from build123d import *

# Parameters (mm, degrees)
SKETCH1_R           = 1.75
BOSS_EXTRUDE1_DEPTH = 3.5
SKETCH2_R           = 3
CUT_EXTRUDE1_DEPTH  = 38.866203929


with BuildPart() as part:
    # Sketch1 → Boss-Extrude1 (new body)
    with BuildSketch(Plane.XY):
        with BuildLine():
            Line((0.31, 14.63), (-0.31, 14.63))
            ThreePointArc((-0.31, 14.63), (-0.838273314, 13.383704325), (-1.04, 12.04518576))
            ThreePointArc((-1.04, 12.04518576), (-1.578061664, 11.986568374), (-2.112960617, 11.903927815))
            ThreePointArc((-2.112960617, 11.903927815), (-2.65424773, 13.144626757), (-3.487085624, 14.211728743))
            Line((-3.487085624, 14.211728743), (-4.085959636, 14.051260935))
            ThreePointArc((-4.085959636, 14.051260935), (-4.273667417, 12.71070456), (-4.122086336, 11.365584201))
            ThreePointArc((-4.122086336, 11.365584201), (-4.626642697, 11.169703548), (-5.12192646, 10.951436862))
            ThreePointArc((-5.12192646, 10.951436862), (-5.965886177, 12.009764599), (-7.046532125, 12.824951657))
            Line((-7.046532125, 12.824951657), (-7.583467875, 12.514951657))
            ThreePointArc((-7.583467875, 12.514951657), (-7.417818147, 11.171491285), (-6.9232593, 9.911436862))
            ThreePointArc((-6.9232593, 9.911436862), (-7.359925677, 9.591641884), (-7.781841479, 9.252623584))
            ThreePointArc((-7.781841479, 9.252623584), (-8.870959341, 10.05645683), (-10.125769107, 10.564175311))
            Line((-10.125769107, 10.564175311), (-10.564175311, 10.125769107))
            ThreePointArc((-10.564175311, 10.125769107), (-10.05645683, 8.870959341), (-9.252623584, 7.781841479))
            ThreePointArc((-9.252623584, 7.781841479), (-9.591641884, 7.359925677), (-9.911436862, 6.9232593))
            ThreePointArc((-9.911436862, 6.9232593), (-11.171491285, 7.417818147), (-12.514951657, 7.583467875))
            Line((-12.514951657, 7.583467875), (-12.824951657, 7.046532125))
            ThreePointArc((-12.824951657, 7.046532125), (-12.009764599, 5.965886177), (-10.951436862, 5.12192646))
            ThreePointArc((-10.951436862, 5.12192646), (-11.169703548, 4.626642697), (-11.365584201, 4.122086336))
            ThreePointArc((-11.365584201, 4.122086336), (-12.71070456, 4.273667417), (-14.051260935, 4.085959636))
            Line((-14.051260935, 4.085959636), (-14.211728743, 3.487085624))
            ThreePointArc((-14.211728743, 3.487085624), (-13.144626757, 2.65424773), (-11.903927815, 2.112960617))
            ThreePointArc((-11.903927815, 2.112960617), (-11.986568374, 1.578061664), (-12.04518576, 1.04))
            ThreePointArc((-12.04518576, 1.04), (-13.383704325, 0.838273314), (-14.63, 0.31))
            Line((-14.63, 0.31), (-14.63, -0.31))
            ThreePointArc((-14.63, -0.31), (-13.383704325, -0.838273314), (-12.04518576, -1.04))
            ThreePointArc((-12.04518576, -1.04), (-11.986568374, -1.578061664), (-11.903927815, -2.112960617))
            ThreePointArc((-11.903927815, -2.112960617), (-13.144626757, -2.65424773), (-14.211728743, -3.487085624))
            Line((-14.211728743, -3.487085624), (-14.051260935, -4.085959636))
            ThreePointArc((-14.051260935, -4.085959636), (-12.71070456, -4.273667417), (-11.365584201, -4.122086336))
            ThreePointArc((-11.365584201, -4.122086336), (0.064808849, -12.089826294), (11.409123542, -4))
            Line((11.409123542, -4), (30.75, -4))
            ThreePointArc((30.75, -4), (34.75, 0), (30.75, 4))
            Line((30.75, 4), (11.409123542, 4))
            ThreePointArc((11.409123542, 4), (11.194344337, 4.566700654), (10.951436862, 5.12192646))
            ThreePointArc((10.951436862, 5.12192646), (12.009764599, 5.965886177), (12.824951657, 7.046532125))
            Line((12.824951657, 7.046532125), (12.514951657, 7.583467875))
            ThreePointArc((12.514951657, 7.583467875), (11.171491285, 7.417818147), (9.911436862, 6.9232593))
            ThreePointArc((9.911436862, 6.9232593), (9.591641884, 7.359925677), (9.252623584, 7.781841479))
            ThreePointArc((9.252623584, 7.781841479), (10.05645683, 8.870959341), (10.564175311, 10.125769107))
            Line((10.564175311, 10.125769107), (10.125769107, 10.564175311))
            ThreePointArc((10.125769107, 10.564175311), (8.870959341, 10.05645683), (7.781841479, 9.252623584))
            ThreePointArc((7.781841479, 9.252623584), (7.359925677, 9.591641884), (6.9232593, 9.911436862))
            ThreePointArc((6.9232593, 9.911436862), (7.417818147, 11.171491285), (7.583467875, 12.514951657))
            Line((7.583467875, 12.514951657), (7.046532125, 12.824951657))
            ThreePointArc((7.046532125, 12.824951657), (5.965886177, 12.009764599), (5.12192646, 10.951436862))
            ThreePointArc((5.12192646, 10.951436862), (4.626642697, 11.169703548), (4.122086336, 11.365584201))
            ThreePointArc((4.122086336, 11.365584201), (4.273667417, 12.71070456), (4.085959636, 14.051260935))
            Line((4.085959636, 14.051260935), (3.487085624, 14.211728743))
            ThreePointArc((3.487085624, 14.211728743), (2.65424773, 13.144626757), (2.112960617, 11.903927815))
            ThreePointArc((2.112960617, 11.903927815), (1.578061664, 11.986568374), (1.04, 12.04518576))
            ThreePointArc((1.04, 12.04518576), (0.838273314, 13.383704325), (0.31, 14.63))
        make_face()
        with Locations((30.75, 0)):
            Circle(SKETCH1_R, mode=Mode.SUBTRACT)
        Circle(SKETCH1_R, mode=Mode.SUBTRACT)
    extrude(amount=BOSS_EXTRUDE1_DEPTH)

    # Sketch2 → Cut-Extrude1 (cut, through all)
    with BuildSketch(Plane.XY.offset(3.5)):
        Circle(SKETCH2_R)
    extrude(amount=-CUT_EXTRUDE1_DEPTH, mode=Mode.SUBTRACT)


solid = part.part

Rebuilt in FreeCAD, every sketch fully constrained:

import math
import FreeCAD as App
import Part
import Sketcher
Q = App.Units.Quantity

doc = App.newDocument("Part")
params = doc.addObject("Spreadsheet::Sheet", "Params")
for row, (alias, value) in enumerate([
    ("sketch1_radius", "4 mm"),
    ("sketch1_diameter", "3.5 mm"),
    ("sketch1_radius2", "5.4 mm"),
    ("sketch1_radius3", "12.09 mm"),
    ("sketch1_width", "0.62 mm"),
    ("pad1_length", "3.5 mm"),
    ("sketch2_diameter", "6 mm"),
], start=1):
    params.set(f"A{row}", alias)
    params.set(f"B{row}", "=" + value)
    params.setAlias(f"B{row}", alias)

body = doc.addObject("PartDesign::Body", "Body")

# Sketch on XY plane
sketch1 = body.newObject("Sketcher::SketchObject", "Sketch")
sketch1.AttachmentSupport = (doc.getObject("XY_Plane"), [""])
sketch1.MapMode = "FlatFace"
sketch1.addGeometry([
    Part.LineSegment(App.Vector(0.31, 14.63, 0), App.Vector(-0.31, 14.63, 0)),  # 0
    Part.ArcOfCircle(Part.Circle(App.Vector(4.358456, 11.916051, 0), App.Vector(0, 0, 1), 5.4), math.radians(149.828948), math.radians(178.629703)),  # 1
    Part.ArcOfCircle(Part.Circle(App.Vector(0, 0, 0), App.Vector(0, 0, 1), 12.09), math.radians(94.934768), math.radians(100.065232)),  # 2
    Part.ArcOfCircle(Part.Circle(App.Vector(-7.294046, 10.38197, 0), App.Vector(0, 0, 1), 5.4), math.radians(16.370297), math.radians(45.171052)),  # 3
    Part.LineSegment(App.Vector(-3.487086, 14.211729, 0), App.Vector(-4.08596, 14.051261, 0)),  # 4
    Part.ArcOfCircle(Part.Circle(App.Vector(1.125844, 12.638072, 0), App.Vector(0, 0, 1), 5.4), math.radians(164.828948), math.radians(193.629703)),  # 5
    Part.ArcOfCircle(Part.Circle(App.Vector(0, 0, 0), App.Vector(0, 0, 1), 12.09), math.radians(109.934768), math.radians(115.065232)),  # 6
    Part.ArcOfCircle(Part.Circle(App.Vector(-9.732559, 8.140375, 0), App.Vector(0, 0, 1), 5.4), math.radians(31.370297), math.radians(60.171052)),  # 7
    Part.LineSegment(App.Vector(-7.046532, 12.824952, 0), App.Vector(-7.583468, 12.514952, 0)),  # 8
    Part.ArcOfCircle(Part.Circle(App.Vector(-2.183492, 12.49883, 0), App.Vector(0, 0, 1), 5.4), math.radians(179.828948), math.radians(208.629703)),  # 9
    Part.ArcOfCircle(Part.Circle(App.Vector(0, 0, 0), App.Vector(0, 0, 1), 12.09), math.radians(124.934768), math.radians(130.065232)),  # 10
    Part.ArcOfCircle(Part.Circle(App.Vector(-11.507814, 5.344027, 0), App.Vector(0, 0, 1), 5.4), math.radians(46.370297), math.radians(75.171052)),  # 11
    Part.LineSegment(App.Vector(-10.125769, 10.564175, 0), App.Vector(-10.564175, 10.125769, 0)),  # 12
    Part.ArcOfCircle(Part.Circle(App.Vector(-5.344027, 11.507814, 0), App.Vector(0, 0, 1), 5.4), math.radians(-165.171052), math.radians(-136.370297)),  # 13
    Part.ArcOfCircle(Part.Circle(App.Vector(0, 0, 0), App.Vector(0, 0, 1), 12.09), math.radians(139.934768), math.radians(145.065232)),  # 14
    Part.ArcOfCircle(Part.Circle(App.Vector(-12.49883, 2.183492, 0), App.Vector(0, 0, 1), 5.4), math.radians(61.370297), math.radians(90.171052)),  # 15
    Part.LineSegment(App.Vector(-12.514952, 7.583468, 0), App.Vector(-12.824952, 7.046532, 0)),  # 16
    Part.ArcOfCircle(Part.Circle(App.Vector(-8.140375, 9.732559, 0), App.Vector(0, 0, 1), 5.4), math.radians(-150.171052), math.radians(-121.370297)),  # 17
    Part.ArcOfCircle(Part.Circle(App.Vector(0, 0, 0), App.Vector(0, 0, 1), 12.09), math.radians(154.934768), math.radians(160.065232)),  # 18
    Part.ArcOfCircle(Part.Circle(App.Vector(-12.638072, -1.125844, 0), App.Vector(0, 0, 1), 5.4), math.radians(76.370297), math.radians(105.171052)),  # 19
    Part.LineSegment(App.Vector(-14.051261, 4.08596, 0), App.Vector(-14.211729, 3.487086, 0)),  # 20
    Part.ArcOfCircle(Part.Circle(App.Vector(-10.38197, 7.294046, 0), App.Vector(0, 0, 1), 5.4), math.radians(-135.171052), math.radians(-106.370297)),  # 21
    Part.ArcOfCircle(Part.Circle(App.Vector(0, 0, 0), App.Vector(0, 0, 1), 12.09), math.radians(169.934768), math.radians(175.065232)),  # 22
    Part.ArcOfCircle(Part.Circle(App.Vector(-11.916051, -4.358456, 0), App.Vector(0, 0, 1), 5.4), math.radians(91.370297), math.radians(120.171052)),  # 23
    Part.LineSegment(App.Vector(-14.63, 0.31, 0), App.Vector(-14.63, -0.31, 0)),  # 24
    Part.ArcOfCircle(Part.Circle(App.Vector(-11.916051, 4.358456, 0), App.Vector(0, 0, 1), 5.4), math.radians(-120.171052), math.radians(-91.370297)),  # 25
    Part.ArcOfCircle(Part.Circle(App.Vector(0, 0, 0), App.Vector(0, 0, 1), 12.09), math.radians(-175.065232), math.radians(-169.934768)),  # 26
    Part.ArcOfCircle(Part.Circle(App.Vector(-10.38197, -7.294046, 0), App.Vector(0, 0, 1), 5.4), math.radians(106.370297), math.radians(135.171052)),  # 27
    Part.LineSegment(App.Vector(-14.211729, -3.487086, 0), App.Vector(-14.051261, -4.08596, 0)),  # 28
    Part.ArcOfCircle(Part.Circle(App.Vector(-12.638072, 1.125844, 0), App.Vector(0, 0, 1), 5.4), math.radians(-105.171052), math.radians(-76.370297)),  # 29
    Part.ArcOfCircle(Part.Circle(App.Vector(0, 0, 0), App.Vector(0, 0, 1), 12.09), math.radians(-160.065232), math.radians(-19.320493)),  # 30
    Part.LineSegment(App.Vector(11.409124, -4, 0), App.Vector(30.75, -4, 0)),  # 31
    Part.ArcOfCircle(Part.Circle(App.Vector(30.75, 0, 0), App.Vector(0, 0, 1), 4), math.radians(-90), math.radians(90)),  # 32
    Part.LineSegment(App.Vector(30.75, 4, 0), App.Vector(11.409124, 4, 0)),  # 33
    Part.ArcOfCircle(Part.Circle(App.Vector(0, 0, 0), App.Vector(0, 0, 1), 12.09), math.radians(19.320493), math.radians(25.065232)),  # 34
    Part.ArcOfCircle(Part.Circle(App.Vector(8.140375, 9.732559, 0), App.Vector(0, 0, 1), 5.4), math.radians(-58.629703), math.radians(-29.828948)),  # 35
    Part.LineSegment(App.Vector(12.824952, 7.046532, 0), App.Vector(12.514952, 7.583468, 0)),  # 36
    Part.ArcOfCircle(Part.Circle(App.Vector(12.49883, 2.183492, 0), App.Vector(0, 0, 1), 5.4), math.radians(89.828948), math.radians(118.629703)),  # 37
    Part.ArcOfCircle(Part.Circle(App.Vector(0, 0, 0), App.Vector(0, 0, 1), 12.09), math.radians(34.934768), math.radians(40.065232)),  # 38
    Part.ArcOfCircle(Part.Circle(App.Vector(5.344027, 11.507814, 0), App.Vector(0, 0, 1), 5.4), math.radians(-43.629703), math.radians(-14.828948)),  # 39
    Part.LineSegment(App.Vector(10.564175, 10.125769, 0), App.Vector(10.125769, 10.564175, 0)),  # 40
    Part.ArcOfCircle(Part.Circle(App.Vector(11.507814, 5.344027, 0), App.Vector(0, 0, 1), 5.4), math.radians(104.828948), math.radians(133.629703)),  # 41
    Part.ArcOfCircle(Part.Circle(App.Vector(0, 0, 0), App.Vector(0, 0, 1), 12.09), math.radians(49.934768), math.radians(55.065232)),  # 42
    Part.ArcOfCircle(Part.Circle(App.Vector(2.183492, 12.49883, 0), App.Vector(0, 0, 1), 5.4), math.radians(-28.629703), math.radians(0.171052)),  # 43
    Part.LineSegment(App.Vector(7.583468, 12.514952, 0), App.Vector(7.046532, 12.824952, 0)),  # 44
    Part.ArcOfCircle(Part.Circle(App.Vector(9.732559, 8.140375, 0), App.Vector(0, 0, 1), 5.4), math.radians(119.828948), math.radians(148.629703)),  # 45
    Part.ArcOfCircle(Part.Circle(App.Vector(0, 0, 0), App.Vector(0, 0, 1), 12.09), math.radians(64.934768), math.radians(70.065232)),  # 46
    Part.ArcOfCircle(Part.Circle(App.Vector(-1.125844, 12.638072, 0), App.Vector(0, 0, 1), 5.4), math.radians(-13.629703), math.radians(15.171052)),  # 47
    Part.LineSegment(App.Vector(4.08596, 14.051261, 0), App.Vector(3.487086, 14.211729, 0)),  # 48
    Part.ArcOfCircle(Part.Circle(App.Vector(7.294046, 10.38197, 0), App.Vector(0, 0, 1), 5.4), math.radians(134.828948), math.radians(163.629703)),  # 49
    Part.ArcOfCircle(Part.Circle(App.Vector(0, 0, 0), App.Vector(0, 0, 1), 12.09), math.radians(79.934768), math.radians(85.065232)),  # 50
    Part.ArcOfCircle(Part.Circle(App.Vector(-4.358456, 11.916051, 0), App.Vector(0, 0, 1), 5.4), math.radians(1.370297), math.radians(30.171052)),  # 51
    Part.Circle(App.Vector(0, 0, 0), App.Vector(0, 0, 1), 1.75),  # 52
    Part.Circle(App.Vector(30.75, 0, 0), App.Vector(0, 0, 1), 1.75),  # 53
], False)
sketch1.addConstraint([
    Sketcher.Constraint("Coincident", 0, 2, 1, 1),
    Sketcher.Constraint("Coincident", 1, 2, 2, 1),
    Sketcher.Constraint("Coincident", 2, 2, 3, 1),
    Sketcher.Constraint("Coincident", 3, 2, 4, 1),
    Sketcher.Constraint("Coincident", 4, 2, 5, 1),
    Sketcher.Constraint("Coincident", 5, 2, 6, 1),
    Sketcher.Constraint("Coincident", 6, 2, 7, 1),
    Sketcher.Constraint("Coincident", 7, 2, 8, 1),
    Sketcher.Constraint("Coincident", 8, 2, 9, 1),
    Sketcher.Constraint("Coincident", 9, 2, 10, 1),
    Sketcher.Constraint("Coincident", 10, 2, 11, 1),
    Sketcher.Constraint("Coincident", 11, 2, 12, 1),
    Sketcher.Constraint("Coincident", 12, 2, 13, 1),
    Sketcher.Constraint("Coincident", 13, 2, 14, 1),
    Sketcher.Constraint("Coincident", 14, 2, 15, 1),
    Sketcher.Constraint("Coincident", 15, 2, 16, 1),
    Sketcher.Constraint("Coincident", 16, 2, 17, 1),
    Sketcher.Constraint("Coincident", 17, 2, 18, 1),
    Sketcher.Constraint("Coincident", 18, 2, 19, 1),
    Sketcher.Constraint("Coincident", 19, 2, 20, 1),
    Sketcher.Constraint("Coincident", 20, 2, 21, 1),
    Sketcher.Constraint("Coincident", 21, 2, 22, 1),
    Sketcher.Constraint("Coincident", 22, 2, 23, 1),
    Sketcher.Constraint("Coincident", 23, 2, 24, 1),
    Sketcher.Constraint("Coincident", 24, 2, 25, 1),
    Sketcher.Constraint("Coincident", 25, 2, 26, 1),
    Sketcher.Constraint("Coincident", 26, 2, 27, 1),
    Sketcher.Constraint("Coincident", 27, 2, 28, 1),
    Sketcher.Constraint("Coincident", 28, 2, 29, 1),
    Sketcher.Constraint("Coincident", 29, 2, 30, 1),
    Sketcher.Constraint("Coincident", 30, 2, 31, 1),
    Sketcher.Constraint("Tangent", 31, 2, 32, 1),
    Sketcher.Constraint("Tangent", 32, 2, 33, 1),
    Sketcher.Constraint("Coincident", 33, 2, 34, 1),
    Sketcher.Constraint("Coincident", 34, 2, 35, 1),
    Sketcher.Constraint("Coincident", 35, 2, 36, 1),
    Sketcher.Constraint("Coincident", 36, 2, 37, 1),
    Sketcher.Constraint("Coincident", 37, 2, 38, 1),
    Sketcher.Constraint("Coincident", 38, 2, 39, 1),
    Sketcher.Constraint("Coincident", 39, 2, 40, 1),
    Sketcher.Constraint("Coincident", 40, 2, 41, 1),
    Sketcher.Constraint("Coincident", 41, 2, 42, 1),
    Sketcher.Constraint("Coincident", 42, 2, 43, 1),
    Sketcher.Constraint("Coincident", 43, 2, 44, 1),
    Sketcher.Constraint("Coincident", 44, 2, 45, 1),
    Sketcher.Constraint("Coincident", 45, 2, 46, 1),
    Sketcher.Constraint("Coincident", 46, 2, 47, 1),
    Sketcher.Constraint("Coincident", 47, 2, 48, 1),
    Sketcher.Constraint("Coincident", 48, 2, 49, 1),
    Sketcher.Constraint("Coincident", 49, 2, 50, 1),
    Sketcher.Constraint("Coincident", 50, 2, 51, 1),
    Sketcher.Constraint("Coincident", 51, 2, 0, 1),
    Sketcher.Constraint("Horizontal", 0),
    Sketcher.Constraint("Vertical", 24),
    Sketcher.Constraint("Horizontal", 31),
    Sketcher.Constraint("Horizontal", 33),
    Sketcher.Constraint("Coincident", 2, 3, -1, 1),
    Sketcher.Constraint("Coincident", 6, 3, -1, 1),
    Sketcher.Constraint("Coincident", 10, 3, -1, 1),
    Sketcher.Constraint("Coincident", 14, 3, -1, 1),
    Sketcher.Constraint("Coincident", 18, 3, -1, 1),
    Sketcher.Constraint("Coincident", 22, 3, -1, 1),
    Sketcher.Constraint("Coincident", 26, 3, -1, 1),
    Sketcher.Constraint("Coincident", 30, 3, -1, 1),
    Sketcher.Constraint("Coincident", 34, 3, -1, 1),
    Sketcher.Constraint("Coincident", 38, 3, -1, 1),
    Sketcher.Constraint("Coincident", 42, 3, -1, 1),
    Sketcher.Constraint("Coincident", 46, 3, -1, 1),
    Sketcher.Constraint("Coincident", 50, 3, -1, 1),
    Sketcher.Constraint("Coincident", 52, 3, -1, 1),
    Sketcher.Constraint("Coincident", 53, 3, 32, 3),
    Sketcher.Constraint("Equal", 1, 3),
    Sketcher.Constraint("Equal", 3, 5),
    Sketcher.Constraint("Equal", 2, 6),
    Sketcher.Constraint("Equal", 5, 7),
    Sketcher.Constraint("Equal", 7, 9),
    Sketcher.Constraint("Equal", 6, 10),
    Sketcher.Constraint("Equal", 9, 11),
    Sketcher.Constraint("Equal", 11, 13),
    Sketcher.Constraint("Equal", 10, 14),
    Sketcher.Constraint("Equal", 13, 15),
    Sketcher.Constraint("Equal", 15, 17),
    Sketcher.Constraint("Equal", 14, 18),
    Sketcher.Constraint("Equal", 17, 19),
    Sketcher.Constraint("Equal", 19, 21),
    Sketcher.Constraint("Equal", 18, 22),
    Sketcher.Constraint("Equal", 21, 23),
    Sketcher.Constraint("Equal", 23, 25),
    Sketcher.Constraint("Equal", 22, 26),
    Sketcher.Constraint("Equal", 25, 27),
    Sketcher.Constraint("Equal", 27, 29),
    Sketcher.Constraint("Equal", 26, 30),
    Sketcher.Constraint("Equal", 30, 34),
    Sketcher.Constraint("Equal", 29, 35),
    Sketcher.Constraint("Equal", 35, 37),
    Sketcher.Constraint("Equal", 34, 38),
    Sketcher.Constraint("Equal", 37, 39),
    Sketcher.Constraint("Equal", 39, 41),
    Sketcher.Constraint("Equal", 38, 42),
    Sketcher.Constraint("Equal", 41, 43),
    Sketcher.Constraint("Equal", 43, 45),
    Sketcher.Constraint("Equal", 42, 46),
    Sketcher.Constraint("Equal", 45, 47),
    Sketcher.Constraint("Equal", 47, 49),
    Sketcher.Constraint("Equal", 46, 50),
    Sketcher.Constraint("Equal", 49, 51),
    Sketcher.Constraint("Equal", 52, 53),
    Sketcher.Constraint("Symmetric", 17, 3, 35, 3, -2),
    Sketcher.Constraint("Symmetric", 15, 3, 37, 3, -2),
    Sketcher.Constraint("Symmetric", 13, 3, 39, 3, -2),
    Sketcher.Constraint("Symmetric", 11, 3, 41, 3, -2),
    Sketcher.Constraint("Symmetric", 9, 3, 43, 3, -2),
    Sketcher.Constraint("Symmetric", 7, 3, 45, 3, -2),
    Sketcher.Constraint("Symmetric", 5, 3, 47, 3, -2),
    Sketcher.Constraint("Symmetric", 3, 3, 49, 3, -2),
    Sketcher.Constraint("Symmetric", 1, 3, 51, 3, -2),
    Sketcher.Constraint("Symmetric", 23, 3, 25, 3, -1),
    Sketcher.Constraint("Symmetric", 21, 3, 27, 3, -1),
    Sketcher.Constraint("Symmetric", 19, 3, 29, 3, -1),
    Sketcher.Constraint("PointOnObject", 32, 3, -1),
    Sketcher.Constraint("Perpendicular", 4, 28),
    Sketcher.Constraint("Perpendicular", 8, 36),
    Sketcher.Constraint("Perpendicular", 12, 40),
    Sketcher.Constraint("Perpendicular", 16, 44),
    Sketcher.Constraint("Perpendicular", 20, 48),
    Sketcher.Constraint("Horizontal", 16, 2, 35, 2),
    Sketcher.Constraint("Horizontal", 12, 2, 39, 2),
    Sketcher.Constraint("Horizontal", 11, 2, 40, 2),
    Sketcher.Constraint("Horizontal", 8, 2, 43, 2),
    Sketcher.Constraint("Horizontal", 7, 2, 44, 2),
    Sketcher.Constraint("Horizontal", 4, 2, 47, 2),
    Sketcher.Constraint("Horizontal", 3, 2, 48, 2),
    Sketcher.Constraint("Vertical", 20, 2, 27, 2),
    Sketcher.Constraint("Equal", 0, 24),
    Sketcher.Constraint("Equal", 4, 8),
    Sketcher.Constraint("Equal", 8, 12),
    Sketcher.Constraint("Equal", 12, 16),
    Sketcher.Constraint("Equal", 16, 20),
    Sketcher.Constraint("Radius", 32, Q("4 mm")),
    Sketcher.Constraint("Diameter", 52, Q("3.5 mm")),
    Sketcher.Constraint("Radius", 1, Q("5.4 mm")),
    Sketcher.Constraint("Angle", 4, Q("-165 deg")),
    Sketcher.Constraint("Angle", 8, Q("-150 deg")),
    Sketcher.Constraint("Radius", 2, Q("12.09 mm")),
    Sketcher.Constraint("DistanceX", 0, 2, 0, 1, Q("0.62 mm")),
    Sketcher.Constraint("Distance", 4, Q("0.62 mm")),
    Sketcher.Constraint("DistanceX", -1, 1, 32, 3, Q("30.75 mm")),
    Sketcher.Constraint("DistanceY", -1, 1, 0, 2, Q("14.63 mm")),
    Sketcher.Constraint("DistanceX", 1, 2, -1, 1, Q("1.04 mm")),
    Sketcher.Constraint("DistanceY", -1, 1, 22, 2, Q("1.04 mm")),
    Sketcher.Constraint("DistanceX", 23, 2, -1, 1, Q("14.63 mm")),
    Sketcher.Constraint("DistanceY", -1, 1, 3, 3, Q("10.38197 mm")),
    Sketcher.Constraint("DistanceX", 7, 3, -1, 1, Q("9.732559 mm")),
    Sketcher.Constraint("DistanceX", 9, 3, -1, 1, Q("2.183492 mm")),
    Sketcher.Constraint("DistanceY", -1, 1, 9, 3, Q("12.49883 mm")),
    Sketcher.Constraint("DistanceX", 15, 3, -1, 1, Q("12.49883 mm")),
    Sketcher.Constraint("DistanceY", -1, 1, 15, 3, Q("2.183492 mm")),
    Sketcher.Constraint("DistanceY", -1, 1, 17, 3, Q("9.732559 mm")),
    Sketcher.Constraint("DistanceX", 21, 3, -1, 1, Q("10.38197 mm")),
    Sketcher.Constraint("DistanceX", 2, 2, -1, 1, Q("2.112961 mm")),
    Sketcher.Constraint("DistanceY", -1, 1, 3, 2, Q("14.211729 mm")),
    Sketcher.Constraint("DistanceY", -1, 1, 7, 2, Q("12.824952 mm")),
    Sketcher.Constraint("DistanceX", 10, 2, -1, 1, Q("7.781841 mm")),
    Sketcher.Constraint("DistanceX", 11, 2, -1, 1, Q("10.125769 mm")),
    Sketcher.Constraint("DistanceY", -1, 1, 12, 2, Q("10.125769 mm")),
    Sketcher.Constraint("DistanceY", -1, 1, 13, 2, Q("7.781841 mm")),
    Sketcher.Constraint("DistanceX", 15, 2, -1, 1, Q("12.514952 mm")),
    Sketcher.Constraint("DistanceX", 19, 2, -1, 1, Q("14.051261 mm")),
    Sketcher.Constraint("DistanceY", -1, 1, 19, 2, Q("4.08596 mm")),
    Sketcher.Constraint("DistanceX", -1, 1, 5, 3, Q("1.125844 mm")),
    Sketcher.Constraint("DistanceX", 19, 3, -1, 1, Q("12.638072 mm")),
])
sketch1.setExpression("Constraints[138]", "Params.sketch1_radius")
sketch1.setExpression("Constraints[139]", "Params.sketch1_diameter")
sketch1.setExpression("Constraints[140]", "Params.sketch1_radius2")
sketch1.setExpression("Constraints[143]", "Params.sketch1_radius3")
sketch1.setExpression("Constraints[144]", "Params.sketch1_width")
pad1 = body.newObject("PartDesign::Pad", "Pad")
pad1.Profile = sketch1
pad1.setExpression("Length", "Params.pad1_length")

# Sketch on XY plane
sketch2 = body.newObject("Sketcher::SketchObject", "Sketch001")
sketch2.AttachmentSupport = (doc.getObject("XY_Plane"), [""])
sketch2.MapMode = "FlatFace"
sketch2.AttachmentOffset = App.Placement(App.Vector(0, 0, 3.5), App.Rotation())
sketch2.addGeometry(Part.Circle(App.Vector(0, 0, 0), App.Vector(0, 0, 1), 3), False)
sketch2.addConstraint([
    Sketcher.Constraint("Coincident", 0, 3, -1, 1),
    Sketcher.Constraint("Diameter", 0, Q("6 mm")),
])
sketch2.setExpression("Constraints[1]", "Params.sketch2_diameter")
pocket1 = body.newObject("PartDesign::Pocket", "Pocket")
pocket1.Profile = sketch2
pocket1.Type = "ThroughAll"

doc.recompute()
